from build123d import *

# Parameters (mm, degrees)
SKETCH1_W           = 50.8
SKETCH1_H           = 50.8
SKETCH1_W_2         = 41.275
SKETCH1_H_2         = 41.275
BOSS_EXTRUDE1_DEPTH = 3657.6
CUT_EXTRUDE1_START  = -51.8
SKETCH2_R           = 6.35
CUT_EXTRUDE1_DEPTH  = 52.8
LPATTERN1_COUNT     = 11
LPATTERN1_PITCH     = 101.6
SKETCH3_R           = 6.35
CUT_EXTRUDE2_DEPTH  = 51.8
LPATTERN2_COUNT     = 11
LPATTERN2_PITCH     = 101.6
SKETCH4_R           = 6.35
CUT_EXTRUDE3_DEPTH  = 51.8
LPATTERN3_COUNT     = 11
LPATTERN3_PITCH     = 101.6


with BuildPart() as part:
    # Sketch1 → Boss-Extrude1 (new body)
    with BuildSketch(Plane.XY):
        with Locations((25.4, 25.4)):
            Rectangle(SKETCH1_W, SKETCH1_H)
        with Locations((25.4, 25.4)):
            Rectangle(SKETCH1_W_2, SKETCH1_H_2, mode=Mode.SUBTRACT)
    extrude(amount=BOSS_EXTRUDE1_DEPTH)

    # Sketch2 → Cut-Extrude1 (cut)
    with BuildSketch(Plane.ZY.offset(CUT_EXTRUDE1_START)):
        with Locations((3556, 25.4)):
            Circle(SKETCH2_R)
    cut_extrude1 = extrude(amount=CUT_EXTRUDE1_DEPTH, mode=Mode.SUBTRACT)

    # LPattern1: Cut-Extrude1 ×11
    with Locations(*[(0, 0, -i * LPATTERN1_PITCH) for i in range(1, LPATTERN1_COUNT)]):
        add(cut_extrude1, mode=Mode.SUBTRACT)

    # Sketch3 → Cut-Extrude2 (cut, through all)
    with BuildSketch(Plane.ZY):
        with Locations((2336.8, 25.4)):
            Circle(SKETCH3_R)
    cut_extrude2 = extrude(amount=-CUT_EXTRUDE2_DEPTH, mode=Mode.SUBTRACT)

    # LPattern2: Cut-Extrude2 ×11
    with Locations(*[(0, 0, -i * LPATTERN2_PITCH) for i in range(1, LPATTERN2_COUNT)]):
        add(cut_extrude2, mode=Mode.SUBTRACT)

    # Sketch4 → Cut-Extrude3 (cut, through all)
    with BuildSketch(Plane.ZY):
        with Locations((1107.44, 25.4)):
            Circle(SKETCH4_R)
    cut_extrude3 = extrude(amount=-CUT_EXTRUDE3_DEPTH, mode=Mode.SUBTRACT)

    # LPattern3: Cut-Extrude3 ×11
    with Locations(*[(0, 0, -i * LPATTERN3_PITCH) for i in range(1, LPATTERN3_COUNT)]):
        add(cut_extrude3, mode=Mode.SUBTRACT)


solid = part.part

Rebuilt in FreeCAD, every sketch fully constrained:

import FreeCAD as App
import Part
import Sketcher
Q = App.Units.Quantity


def add_polygon(sketch, points):
    """Adds a closed chain of lines whose ends are joined by coincident constraints."""
    first, n = sketch.GeometryCount, len(points)
    for a, b in zip(points, points[1:] + points[:1]):
        sketch.addGeometry(Part.LineSegment(App.Vector(*a, 0), App.Vector(*b, 0)), False)
    for i in range(n):
        sketch.addConstraint(Sketcher.Constraint("Coincident", first + i, 2, first + (i + 1) % n, 1))

doc = App.newDocument("Part")
body = doc.addObject("PartDesign::Body", "Body")

# Sketch on XY plane
sketch1 = doc.addObject("Sketcher::SketchObject", "Sketch")
body.addObject(sketch1)
sketch1.AttachmentSupport = (doc.XY_Plane, [""])
sketch1.MapMode = "FlatFace"
add_polygon(sketch1, [(0, 51), (0, 0), (51, 0), (51, 51)])  # lines 0-3
add_polygon(sketch1, [(46, 5), (5, 5), (5, 46), (46, 46)])  # lines 4-7
sketch1.addConstraint([
    Sketcher.Constraint("Vertical", 0),
    Sketcher.Constraint("Horizontal", 1),
    Sketcher.Constraint("Vertical", 2),
    Sketcher.Constraint("Horizontal", 3),
    Sketcher.Constraint("Horizontal", 4),
    Sketcher.Constraint("Vertical", 5),
    Sketcher.Constraint("Horizontal", 6),
    Sketcher.Constraint("Vertical", 7),
    Sketcher.Constraint("Coincident", 0, 2, -1, 1),
    Sketcher.Constraint("Equal", 3, 0),
    Sketcher.Constraint("Equal", 6, 5),
    Sketcher.Constraint("DistanceX", 1, 1, 1, 2, Q("2 in")),
    Sketcher.Constraint("DistanceX", 4, 2, 4, 1, Q("1.625 in")),
    Sketcher.Constraint("DistanceX", -1, 1, 4, 2, Q("0.1875 in")),
    Sketcher.Constraint("DistanceY", -1, 1, 4, 2, Q("0.1875 in")),
])
pad1 = doc.addObject("PartDesign::Pad", "Pad")
body.addObject(pad1)
pad1.Profile = sketch1
pad1.Length = Q("144 in")

# Sketch on YZ plane
sketch2 = doc.addObject("Sketcher::SketchObject", "Sketch001")
body.addObject(sketch2)
sketch2.AttachmentSupport = (doc.YZ_Plane, [""])
sketch2.MapMode = "FlatFace"
sketch2.AttachmentOffset = App.Placement(App.Vector(0, 0, 51.8), App.Rotation())
sketch2.addGeometry(Part.Circle(App.Vector(25, 3556, 0), App.Vector(0, 0, 1), 6), False)
sketch2.addConstraint([
    Sketcher.Constraint("Diameter", 0, Q("0.5 in")),
    Sketcher.Constraint("DistanceX", -1, 1, 0, 3, Q("1 in")),
    Sketcher.Constraint("DistanceY", -1, 1, 0, 3, Q("140 in")),
])
pocket1 = doc.addObject("PartDesign::Pocket", "Pocket")
body.addObject(pocket1)
pocket1.Profile = sketch2
pocket1.Length = 52.8
doc.recompute()

linearpattern = doc.addObject("PartDesign::LinearPattern", "LinearPattern")
body.addObject(linearpattern)
linearpattern.Originals = [pocket1]
linearpattern.Direction = (doc.Z_Axis, [""])
linearpattern.Mode = "offset"
linearpattern.Offset = Q("4 in")
linearpattern.Occurrences = 11
linearpattern.Reversed = True
body.Tip = linearpattern

# Sketch on YZ plane
sketch3 = doc.addObject("Sketcher::SketchObject", "Sketch002")
body.addObject(sketch3)
sketch3.AttachmentSupport = (doc.YZ_Plane, [""])
sketch3.MapMode = "FlatFace"
sketch3.addGeometry(Part.Circle(App.Vector(25, 2337, 0), App.Vector(0, 0, 1), 6), False)
sketch3.addConstraint([
    Sketcher.Constraint("Diameter", 0, Q("0.5 in")),
    Sketcher.Constraint("DistanceX", -1, 1, 0, 3, Q("1 in")),
    Sketcher.Constraint("DistanceY", -1, 1, 0, 3, Q("92 in")),
])
pocket2 = doc.addObject("PartDesign::Pocket", "Pocket001")
body.addObject(pocket2)
pocket2.Profile = sketch3
pocket2.Type = "ThroughAll"
pocket2.Reversed = True
doc.recompute()

linearpattern2 = doc.addObject("PartDesign::LinearPattern", "LinearPattern001")
body.addObject(linearpattern2)
linearpattern2.Originals = [pocket2]
linearpattern2.Direction = (doc.Z_Axis, [""])
linearpattern2.Mode = "offset"
linearpattern2.Offset = Q("4 in")
linearpattern2.Occurrences = 11
linearpattern2.Reversed = True
body.Tip = linearpattern2

# Sketch on YZ plane
sketch4 = doc.addObject("Sketcher::SketchObject", "Sketch003")
body.addObject(sketch4)
sketch4.AttachmentSupport = (doc.YZ_Plane, [""])
sketch4.MapMode = "FlatFace"
sketch4.addGeometry(Part.Circle(App.Vector(25, 1107, 0), App.Vector(0, 0, 1), 6), False)
sketch4.addConstraint([
    Sketcher.Constraint("Diameter", 0, Q("0.5 in")),
    Sketcher.Constraint("DistanceX", -1, 1, 0, 3, Q("1 in")),
    Sketcher.Constraint("DistanceY", -1, 1, 0, 3, Q("43.6 in")),
])
pocket3 = doc.addObject("PartDesign::Pocket", "Pocket002")
body.addObject(pocket3)
pocket3.Profile = sketch4
pocket3.Type = "ThroughAll"
pocket3.Reversed = True
doc.recompute()

linearpattern3 = doc.addObject("PartDesign::LinearPattern", "LinearPattern002")
body.addObject(linearpattern3)
linearpattern3.Originals = [pocket3]
linearpattern3.Direction = (doc.Z_Axis, [""])
linearpattern3.Mode = "offset"
linearpattern3.Offset = Q("4 in")
linearpattern3.Occurrences = 11
linearpattern3.Reversed = True
body.Tip = linearpattern3

doc.recompute()
